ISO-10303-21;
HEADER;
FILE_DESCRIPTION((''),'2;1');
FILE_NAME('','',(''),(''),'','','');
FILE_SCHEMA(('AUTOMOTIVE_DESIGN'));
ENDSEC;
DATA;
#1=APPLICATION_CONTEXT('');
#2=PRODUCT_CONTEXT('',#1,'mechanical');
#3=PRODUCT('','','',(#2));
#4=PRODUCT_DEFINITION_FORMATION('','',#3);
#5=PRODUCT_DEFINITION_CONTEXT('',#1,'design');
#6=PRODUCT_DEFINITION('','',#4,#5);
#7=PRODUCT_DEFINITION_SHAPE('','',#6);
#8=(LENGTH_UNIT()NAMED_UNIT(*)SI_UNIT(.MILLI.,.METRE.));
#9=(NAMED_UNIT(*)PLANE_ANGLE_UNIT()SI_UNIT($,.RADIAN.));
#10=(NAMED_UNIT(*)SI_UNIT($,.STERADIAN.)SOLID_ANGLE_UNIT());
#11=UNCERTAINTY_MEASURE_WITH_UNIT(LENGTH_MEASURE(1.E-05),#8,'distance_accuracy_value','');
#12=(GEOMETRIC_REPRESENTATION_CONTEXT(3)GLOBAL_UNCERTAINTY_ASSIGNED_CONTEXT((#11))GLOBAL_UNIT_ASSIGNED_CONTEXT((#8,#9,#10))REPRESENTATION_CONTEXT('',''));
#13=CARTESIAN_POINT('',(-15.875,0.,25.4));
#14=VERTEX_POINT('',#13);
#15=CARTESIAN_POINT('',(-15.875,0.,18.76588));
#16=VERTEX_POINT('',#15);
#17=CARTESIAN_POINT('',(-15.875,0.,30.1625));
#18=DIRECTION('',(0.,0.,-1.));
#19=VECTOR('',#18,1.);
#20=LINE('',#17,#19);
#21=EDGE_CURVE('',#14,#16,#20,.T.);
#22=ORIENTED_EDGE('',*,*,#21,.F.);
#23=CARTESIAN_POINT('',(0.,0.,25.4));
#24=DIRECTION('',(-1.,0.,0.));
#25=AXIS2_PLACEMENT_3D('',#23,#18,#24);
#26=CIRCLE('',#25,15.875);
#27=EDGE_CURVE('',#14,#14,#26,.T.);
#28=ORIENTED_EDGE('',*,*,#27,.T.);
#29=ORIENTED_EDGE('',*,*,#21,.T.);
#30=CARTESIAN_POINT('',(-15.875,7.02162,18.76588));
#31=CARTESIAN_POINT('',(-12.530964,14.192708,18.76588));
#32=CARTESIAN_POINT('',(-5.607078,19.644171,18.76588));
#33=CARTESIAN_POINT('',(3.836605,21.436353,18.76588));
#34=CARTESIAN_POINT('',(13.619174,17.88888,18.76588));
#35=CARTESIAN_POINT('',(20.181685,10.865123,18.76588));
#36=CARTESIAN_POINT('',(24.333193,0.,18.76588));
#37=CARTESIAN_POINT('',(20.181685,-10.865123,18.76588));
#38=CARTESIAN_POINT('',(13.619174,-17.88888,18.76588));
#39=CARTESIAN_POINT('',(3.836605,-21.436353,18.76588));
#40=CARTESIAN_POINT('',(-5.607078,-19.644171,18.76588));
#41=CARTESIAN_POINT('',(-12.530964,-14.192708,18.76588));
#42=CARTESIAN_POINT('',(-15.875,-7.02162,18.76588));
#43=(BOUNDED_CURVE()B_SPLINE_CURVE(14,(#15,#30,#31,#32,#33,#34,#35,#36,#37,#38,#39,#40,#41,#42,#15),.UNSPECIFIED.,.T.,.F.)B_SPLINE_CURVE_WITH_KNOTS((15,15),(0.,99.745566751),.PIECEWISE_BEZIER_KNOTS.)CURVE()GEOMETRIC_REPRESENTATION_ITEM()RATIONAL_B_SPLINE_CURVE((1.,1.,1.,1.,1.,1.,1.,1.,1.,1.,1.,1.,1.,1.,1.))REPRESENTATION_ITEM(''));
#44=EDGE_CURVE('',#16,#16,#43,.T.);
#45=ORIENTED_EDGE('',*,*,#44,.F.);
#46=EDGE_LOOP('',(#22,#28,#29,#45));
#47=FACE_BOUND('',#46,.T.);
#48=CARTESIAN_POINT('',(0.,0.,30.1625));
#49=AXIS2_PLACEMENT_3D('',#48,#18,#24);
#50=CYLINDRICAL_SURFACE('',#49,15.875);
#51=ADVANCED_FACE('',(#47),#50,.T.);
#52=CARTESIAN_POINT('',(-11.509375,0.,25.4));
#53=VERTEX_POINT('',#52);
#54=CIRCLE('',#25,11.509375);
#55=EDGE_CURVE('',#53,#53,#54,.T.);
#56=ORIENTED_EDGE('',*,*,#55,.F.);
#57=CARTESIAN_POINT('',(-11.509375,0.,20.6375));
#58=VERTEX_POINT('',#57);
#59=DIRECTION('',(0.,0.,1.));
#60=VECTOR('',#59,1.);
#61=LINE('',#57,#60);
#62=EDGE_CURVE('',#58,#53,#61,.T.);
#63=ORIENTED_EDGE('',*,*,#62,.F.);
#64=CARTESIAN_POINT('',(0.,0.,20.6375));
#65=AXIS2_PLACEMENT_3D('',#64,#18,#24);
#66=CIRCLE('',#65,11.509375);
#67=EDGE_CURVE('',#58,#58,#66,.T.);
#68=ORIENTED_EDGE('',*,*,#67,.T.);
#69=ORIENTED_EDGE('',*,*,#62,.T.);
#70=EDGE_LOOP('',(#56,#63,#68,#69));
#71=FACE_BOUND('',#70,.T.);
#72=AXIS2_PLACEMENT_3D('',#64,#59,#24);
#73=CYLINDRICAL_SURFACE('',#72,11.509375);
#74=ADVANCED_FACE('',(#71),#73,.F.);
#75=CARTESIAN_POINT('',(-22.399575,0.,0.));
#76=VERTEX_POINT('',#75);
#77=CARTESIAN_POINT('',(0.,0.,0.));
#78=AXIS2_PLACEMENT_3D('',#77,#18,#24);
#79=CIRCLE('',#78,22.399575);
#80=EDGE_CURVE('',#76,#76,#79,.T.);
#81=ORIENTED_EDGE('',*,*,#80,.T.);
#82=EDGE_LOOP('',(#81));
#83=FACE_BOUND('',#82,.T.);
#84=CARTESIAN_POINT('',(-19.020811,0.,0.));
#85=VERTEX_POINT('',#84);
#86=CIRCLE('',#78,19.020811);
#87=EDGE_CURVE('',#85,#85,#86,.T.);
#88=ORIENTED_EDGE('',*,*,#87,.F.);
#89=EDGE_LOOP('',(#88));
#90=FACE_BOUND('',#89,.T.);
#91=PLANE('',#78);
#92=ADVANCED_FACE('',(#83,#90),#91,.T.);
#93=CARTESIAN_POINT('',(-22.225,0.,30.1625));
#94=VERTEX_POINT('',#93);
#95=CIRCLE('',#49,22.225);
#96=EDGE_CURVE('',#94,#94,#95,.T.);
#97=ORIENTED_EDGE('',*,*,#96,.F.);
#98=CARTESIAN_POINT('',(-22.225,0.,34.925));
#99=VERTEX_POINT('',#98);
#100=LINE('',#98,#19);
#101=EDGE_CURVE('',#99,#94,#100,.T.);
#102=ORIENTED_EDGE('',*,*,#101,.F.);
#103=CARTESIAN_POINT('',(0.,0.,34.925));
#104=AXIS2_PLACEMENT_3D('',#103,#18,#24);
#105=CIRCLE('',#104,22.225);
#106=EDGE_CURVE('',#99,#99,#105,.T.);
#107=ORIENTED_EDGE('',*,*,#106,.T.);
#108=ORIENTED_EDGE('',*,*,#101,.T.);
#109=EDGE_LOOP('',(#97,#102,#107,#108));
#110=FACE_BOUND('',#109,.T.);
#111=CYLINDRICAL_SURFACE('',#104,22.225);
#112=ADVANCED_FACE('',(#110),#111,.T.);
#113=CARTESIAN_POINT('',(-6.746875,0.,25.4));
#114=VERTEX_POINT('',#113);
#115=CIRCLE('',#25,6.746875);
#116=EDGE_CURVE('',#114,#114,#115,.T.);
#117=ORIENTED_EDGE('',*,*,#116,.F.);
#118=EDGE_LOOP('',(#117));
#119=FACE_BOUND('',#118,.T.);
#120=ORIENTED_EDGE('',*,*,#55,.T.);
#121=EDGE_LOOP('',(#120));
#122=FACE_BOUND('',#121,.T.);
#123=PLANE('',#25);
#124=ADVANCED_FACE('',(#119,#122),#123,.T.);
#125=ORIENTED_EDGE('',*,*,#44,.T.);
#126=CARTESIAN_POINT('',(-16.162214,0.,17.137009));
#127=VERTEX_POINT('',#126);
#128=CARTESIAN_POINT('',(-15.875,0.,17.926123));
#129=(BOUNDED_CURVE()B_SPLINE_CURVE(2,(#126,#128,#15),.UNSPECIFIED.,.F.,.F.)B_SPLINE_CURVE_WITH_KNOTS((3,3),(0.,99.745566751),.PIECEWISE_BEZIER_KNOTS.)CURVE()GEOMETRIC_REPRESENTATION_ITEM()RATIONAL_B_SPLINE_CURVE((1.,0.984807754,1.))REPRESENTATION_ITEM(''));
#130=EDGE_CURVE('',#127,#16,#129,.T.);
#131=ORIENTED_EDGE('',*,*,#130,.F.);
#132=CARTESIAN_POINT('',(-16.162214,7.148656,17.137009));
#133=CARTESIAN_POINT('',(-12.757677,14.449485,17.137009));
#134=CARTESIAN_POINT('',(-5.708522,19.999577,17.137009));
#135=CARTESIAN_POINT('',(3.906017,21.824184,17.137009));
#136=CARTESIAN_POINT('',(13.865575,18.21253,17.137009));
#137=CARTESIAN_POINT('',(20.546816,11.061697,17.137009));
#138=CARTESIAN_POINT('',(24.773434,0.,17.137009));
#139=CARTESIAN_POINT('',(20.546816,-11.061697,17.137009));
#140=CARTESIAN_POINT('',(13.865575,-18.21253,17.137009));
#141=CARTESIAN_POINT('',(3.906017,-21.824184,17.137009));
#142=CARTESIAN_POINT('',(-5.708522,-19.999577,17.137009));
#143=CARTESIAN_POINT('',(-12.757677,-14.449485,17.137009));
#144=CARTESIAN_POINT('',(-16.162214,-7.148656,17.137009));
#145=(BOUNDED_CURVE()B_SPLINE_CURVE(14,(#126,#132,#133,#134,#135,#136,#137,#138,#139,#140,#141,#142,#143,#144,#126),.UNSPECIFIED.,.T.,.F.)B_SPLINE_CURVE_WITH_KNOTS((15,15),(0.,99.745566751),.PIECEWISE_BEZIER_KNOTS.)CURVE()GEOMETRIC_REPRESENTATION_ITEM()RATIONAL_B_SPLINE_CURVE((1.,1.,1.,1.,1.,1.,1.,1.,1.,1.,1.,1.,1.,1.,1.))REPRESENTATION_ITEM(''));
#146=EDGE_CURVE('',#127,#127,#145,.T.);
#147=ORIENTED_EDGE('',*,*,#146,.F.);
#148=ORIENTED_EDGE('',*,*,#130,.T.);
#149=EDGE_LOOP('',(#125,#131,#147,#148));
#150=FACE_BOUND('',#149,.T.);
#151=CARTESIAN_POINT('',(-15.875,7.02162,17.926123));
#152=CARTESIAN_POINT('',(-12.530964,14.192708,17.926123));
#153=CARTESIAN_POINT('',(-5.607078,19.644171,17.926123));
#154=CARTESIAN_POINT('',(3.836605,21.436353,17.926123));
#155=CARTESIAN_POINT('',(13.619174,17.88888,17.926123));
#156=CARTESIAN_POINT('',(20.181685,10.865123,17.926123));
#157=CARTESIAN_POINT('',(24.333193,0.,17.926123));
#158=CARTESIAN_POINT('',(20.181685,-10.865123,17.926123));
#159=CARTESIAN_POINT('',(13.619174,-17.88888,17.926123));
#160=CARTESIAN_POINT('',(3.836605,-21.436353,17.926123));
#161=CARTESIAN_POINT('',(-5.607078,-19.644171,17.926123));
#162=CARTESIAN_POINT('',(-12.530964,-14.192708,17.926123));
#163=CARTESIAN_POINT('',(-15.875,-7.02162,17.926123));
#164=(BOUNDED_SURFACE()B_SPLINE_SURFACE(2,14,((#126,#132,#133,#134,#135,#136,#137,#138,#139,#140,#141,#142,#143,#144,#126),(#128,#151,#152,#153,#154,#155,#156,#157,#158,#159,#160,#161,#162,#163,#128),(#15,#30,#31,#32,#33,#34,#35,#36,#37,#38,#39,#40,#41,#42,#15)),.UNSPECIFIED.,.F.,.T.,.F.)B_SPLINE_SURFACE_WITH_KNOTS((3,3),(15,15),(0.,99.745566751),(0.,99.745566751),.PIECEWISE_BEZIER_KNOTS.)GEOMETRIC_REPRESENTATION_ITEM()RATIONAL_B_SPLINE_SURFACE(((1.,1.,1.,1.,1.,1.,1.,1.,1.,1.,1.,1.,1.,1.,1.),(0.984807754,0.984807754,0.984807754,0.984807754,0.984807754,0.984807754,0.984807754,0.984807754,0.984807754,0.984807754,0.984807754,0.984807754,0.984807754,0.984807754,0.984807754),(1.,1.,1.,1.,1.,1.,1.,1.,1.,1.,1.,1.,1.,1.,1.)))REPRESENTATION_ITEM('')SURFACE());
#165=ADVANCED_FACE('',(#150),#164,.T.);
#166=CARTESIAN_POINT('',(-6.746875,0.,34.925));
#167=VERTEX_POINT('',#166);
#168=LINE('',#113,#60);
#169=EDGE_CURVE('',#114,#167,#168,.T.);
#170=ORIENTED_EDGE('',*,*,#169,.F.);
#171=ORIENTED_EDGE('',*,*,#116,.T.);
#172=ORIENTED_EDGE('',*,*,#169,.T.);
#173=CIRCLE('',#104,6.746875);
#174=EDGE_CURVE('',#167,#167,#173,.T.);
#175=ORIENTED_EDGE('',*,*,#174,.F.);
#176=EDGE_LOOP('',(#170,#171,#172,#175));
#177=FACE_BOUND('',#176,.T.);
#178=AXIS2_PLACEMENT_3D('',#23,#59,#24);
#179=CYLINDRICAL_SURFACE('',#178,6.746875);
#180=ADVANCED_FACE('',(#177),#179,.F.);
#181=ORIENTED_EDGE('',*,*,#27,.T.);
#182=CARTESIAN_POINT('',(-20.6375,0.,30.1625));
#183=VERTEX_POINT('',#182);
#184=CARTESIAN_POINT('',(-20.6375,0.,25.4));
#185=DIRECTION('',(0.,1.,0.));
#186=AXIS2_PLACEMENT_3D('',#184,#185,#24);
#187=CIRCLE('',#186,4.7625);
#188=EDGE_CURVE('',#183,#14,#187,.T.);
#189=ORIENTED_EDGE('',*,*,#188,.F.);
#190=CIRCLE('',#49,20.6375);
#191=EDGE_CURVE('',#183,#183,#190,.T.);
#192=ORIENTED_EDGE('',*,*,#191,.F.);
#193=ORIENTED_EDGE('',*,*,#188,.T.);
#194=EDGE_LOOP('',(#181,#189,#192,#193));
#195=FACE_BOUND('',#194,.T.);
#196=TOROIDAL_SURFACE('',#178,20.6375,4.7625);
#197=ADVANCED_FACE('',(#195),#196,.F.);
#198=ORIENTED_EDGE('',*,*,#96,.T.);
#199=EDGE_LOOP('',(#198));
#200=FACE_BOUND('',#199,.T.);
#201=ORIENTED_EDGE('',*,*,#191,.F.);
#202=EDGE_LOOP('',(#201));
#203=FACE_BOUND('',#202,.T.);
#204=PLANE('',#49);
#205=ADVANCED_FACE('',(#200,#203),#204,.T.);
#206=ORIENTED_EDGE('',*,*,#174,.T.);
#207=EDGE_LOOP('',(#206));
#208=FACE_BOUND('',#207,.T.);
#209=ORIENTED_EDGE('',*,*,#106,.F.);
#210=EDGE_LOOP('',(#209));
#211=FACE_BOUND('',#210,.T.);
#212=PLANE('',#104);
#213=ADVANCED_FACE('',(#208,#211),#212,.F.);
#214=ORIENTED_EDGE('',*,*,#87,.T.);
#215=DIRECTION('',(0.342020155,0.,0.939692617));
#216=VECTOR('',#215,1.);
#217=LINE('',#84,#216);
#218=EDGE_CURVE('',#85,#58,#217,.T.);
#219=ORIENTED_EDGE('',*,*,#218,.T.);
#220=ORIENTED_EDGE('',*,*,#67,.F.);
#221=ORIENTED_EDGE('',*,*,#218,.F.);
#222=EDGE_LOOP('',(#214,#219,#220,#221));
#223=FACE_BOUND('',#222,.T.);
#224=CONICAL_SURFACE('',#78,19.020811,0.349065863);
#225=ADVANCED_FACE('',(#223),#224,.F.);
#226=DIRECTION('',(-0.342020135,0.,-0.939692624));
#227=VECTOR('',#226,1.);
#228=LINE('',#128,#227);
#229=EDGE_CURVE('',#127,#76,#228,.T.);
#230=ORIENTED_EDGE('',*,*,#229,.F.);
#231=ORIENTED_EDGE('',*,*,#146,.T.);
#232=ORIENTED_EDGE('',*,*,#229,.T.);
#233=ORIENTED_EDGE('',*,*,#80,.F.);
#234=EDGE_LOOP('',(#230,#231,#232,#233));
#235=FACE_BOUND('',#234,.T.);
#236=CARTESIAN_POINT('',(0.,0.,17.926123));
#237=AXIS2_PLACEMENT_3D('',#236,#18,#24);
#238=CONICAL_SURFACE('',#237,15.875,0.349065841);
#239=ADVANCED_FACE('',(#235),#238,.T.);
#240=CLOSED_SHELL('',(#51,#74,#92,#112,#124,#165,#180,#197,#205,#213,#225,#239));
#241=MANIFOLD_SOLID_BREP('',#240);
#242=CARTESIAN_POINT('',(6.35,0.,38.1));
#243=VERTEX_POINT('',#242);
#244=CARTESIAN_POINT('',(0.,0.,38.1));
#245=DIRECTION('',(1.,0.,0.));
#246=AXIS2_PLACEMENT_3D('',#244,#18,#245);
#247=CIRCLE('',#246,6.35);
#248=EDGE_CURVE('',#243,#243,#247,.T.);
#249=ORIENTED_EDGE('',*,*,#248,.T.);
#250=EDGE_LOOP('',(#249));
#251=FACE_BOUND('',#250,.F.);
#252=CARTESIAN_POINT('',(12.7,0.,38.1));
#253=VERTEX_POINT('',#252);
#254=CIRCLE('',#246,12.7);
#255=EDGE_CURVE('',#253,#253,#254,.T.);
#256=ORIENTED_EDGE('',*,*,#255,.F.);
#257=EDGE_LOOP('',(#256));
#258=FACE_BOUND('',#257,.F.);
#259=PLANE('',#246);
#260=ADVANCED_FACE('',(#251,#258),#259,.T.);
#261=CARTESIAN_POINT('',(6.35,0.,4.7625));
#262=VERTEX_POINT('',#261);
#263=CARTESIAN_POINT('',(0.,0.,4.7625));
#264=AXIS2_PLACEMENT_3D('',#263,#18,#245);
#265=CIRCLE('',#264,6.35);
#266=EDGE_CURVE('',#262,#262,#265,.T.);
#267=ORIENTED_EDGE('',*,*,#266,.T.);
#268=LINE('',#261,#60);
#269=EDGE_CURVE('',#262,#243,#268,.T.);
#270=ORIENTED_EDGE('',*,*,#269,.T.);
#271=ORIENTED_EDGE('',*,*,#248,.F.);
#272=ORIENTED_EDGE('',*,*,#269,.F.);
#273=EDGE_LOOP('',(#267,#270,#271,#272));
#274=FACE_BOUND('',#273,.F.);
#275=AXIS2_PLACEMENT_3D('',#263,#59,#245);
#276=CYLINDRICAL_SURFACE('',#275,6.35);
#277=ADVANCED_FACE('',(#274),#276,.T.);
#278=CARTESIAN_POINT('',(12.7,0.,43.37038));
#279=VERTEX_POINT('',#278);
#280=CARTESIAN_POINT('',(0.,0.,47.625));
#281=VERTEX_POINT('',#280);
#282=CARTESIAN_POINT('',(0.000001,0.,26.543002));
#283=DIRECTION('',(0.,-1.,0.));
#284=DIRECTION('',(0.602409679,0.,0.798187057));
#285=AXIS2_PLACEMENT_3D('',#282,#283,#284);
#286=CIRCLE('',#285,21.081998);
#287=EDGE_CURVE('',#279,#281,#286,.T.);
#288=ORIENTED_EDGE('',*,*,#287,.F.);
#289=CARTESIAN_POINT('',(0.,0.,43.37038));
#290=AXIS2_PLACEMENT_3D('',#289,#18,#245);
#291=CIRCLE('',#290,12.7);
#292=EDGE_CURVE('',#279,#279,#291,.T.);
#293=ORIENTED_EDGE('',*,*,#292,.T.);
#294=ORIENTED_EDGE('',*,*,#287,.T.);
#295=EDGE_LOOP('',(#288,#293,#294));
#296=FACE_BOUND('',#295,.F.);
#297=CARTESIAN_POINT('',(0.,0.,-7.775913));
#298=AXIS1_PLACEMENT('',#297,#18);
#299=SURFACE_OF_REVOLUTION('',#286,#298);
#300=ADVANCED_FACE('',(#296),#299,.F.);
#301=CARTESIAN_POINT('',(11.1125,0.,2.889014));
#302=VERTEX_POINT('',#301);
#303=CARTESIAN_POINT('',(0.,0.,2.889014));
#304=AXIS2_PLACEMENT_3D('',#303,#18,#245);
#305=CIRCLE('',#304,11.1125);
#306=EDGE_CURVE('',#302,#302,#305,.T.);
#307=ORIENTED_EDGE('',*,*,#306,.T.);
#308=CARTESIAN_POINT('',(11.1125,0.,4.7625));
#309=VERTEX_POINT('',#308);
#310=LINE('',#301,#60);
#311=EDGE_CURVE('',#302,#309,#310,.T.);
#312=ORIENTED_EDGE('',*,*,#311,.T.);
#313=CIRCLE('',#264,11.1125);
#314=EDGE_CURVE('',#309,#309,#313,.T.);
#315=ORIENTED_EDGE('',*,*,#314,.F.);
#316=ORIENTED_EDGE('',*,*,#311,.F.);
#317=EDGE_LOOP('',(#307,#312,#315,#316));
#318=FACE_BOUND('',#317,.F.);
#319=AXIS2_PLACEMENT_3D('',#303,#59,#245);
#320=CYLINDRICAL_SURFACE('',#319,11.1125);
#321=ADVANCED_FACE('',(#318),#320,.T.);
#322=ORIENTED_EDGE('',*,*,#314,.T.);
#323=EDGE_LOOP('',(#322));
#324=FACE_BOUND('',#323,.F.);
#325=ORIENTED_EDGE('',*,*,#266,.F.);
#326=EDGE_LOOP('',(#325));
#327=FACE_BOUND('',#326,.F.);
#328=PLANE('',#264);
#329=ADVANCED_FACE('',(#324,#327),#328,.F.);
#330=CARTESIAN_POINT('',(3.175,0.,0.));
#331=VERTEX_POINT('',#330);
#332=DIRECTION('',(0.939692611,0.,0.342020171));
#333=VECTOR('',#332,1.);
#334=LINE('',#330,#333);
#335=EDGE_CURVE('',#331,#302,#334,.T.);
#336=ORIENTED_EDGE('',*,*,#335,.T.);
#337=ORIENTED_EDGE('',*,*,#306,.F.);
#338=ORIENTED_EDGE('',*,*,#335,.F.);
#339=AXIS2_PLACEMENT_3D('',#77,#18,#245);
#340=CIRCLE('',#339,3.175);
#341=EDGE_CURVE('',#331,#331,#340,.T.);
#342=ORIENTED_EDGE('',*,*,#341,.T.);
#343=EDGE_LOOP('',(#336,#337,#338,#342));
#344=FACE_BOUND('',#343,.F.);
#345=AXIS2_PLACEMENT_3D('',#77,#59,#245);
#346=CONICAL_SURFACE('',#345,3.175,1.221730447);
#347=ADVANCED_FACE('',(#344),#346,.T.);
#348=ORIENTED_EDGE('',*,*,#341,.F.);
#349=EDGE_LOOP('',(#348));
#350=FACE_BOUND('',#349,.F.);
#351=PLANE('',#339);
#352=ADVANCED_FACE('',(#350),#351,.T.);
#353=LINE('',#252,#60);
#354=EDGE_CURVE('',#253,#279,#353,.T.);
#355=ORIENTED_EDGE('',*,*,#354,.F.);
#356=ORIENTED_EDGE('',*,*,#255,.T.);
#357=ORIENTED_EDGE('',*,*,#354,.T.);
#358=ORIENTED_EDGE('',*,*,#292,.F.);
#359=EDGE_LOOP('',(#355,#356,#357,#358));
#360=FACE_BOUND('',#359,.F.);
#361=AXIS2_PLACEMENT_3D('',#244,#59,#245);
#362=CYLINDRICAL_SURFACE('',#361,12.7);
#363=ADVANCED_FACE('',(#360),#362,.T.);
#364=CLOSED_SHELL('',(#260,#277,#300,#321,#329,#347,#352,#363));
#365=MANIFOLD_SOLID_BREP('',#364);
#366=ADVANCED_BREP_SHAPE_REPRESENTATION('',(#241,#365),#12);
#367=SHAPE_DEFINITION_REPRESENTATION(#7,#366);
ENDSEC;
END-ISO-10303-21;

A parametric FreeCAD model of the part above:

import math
import FreeCAD as App
import Part
import Sketcher

V = App.Vector
Q = App.Units.Quantity


def edges_at(feature, points):
    """Names of the edges that pass closest to the given points."""
    edges = feature.Shape.Edges
    near = lambda p: min(range(len(edges)), key=lambda i: edges[i].distToShape(Part.Vertex(*p))[0])
    return sorted({f"Edge{near(p) + 1}" for p in points})

doc = App.newDocument("Part")
params = doc.addObject("Spreadsheet::Sheet", "Params")
for row, (alias, value) in enumerate([
    ("sketch1_radius", "0.8299999 in"),
    ("sketch1_width", "0.25 in"),
    ("sketch1_width2", "0.125 in"),
    ("sketch1_width3", "0.1875 in"),
    ("sketch1_width4", "0.609375 in"),
    ("revolution_angle", "360 deg"),
    ("fillet_radius", "0.1875 in"),
], start=1):
    params.set(f"A{row}", alias)
    params.set(f"B{row}", "=" + value)
    params.setAlias(f"B{row}", alias)

body = doc.addObject("PartDesign::Body", "Body")
body.AllowCompound = True

# Sketch on XZ plane
sketch1 = doc.addObject("Sketcher::SketchObject", "Sketch")
body.addObject(sketch1)
sketch1.AttachmentSupport = (doc.XZ_Plane, [""])
sketch1.MapMode = "FlatFace"
sketch1.addGeometry([
    Part.LineSegment(V(0, 47.625, 0), V(0, 0, 0)),  # 0
    Part.LineSegment(V(0, 0, 0), V(3.175, 0, 0)),  # 1
    Part.LineSegment(V(3.175, 0, 0), V(11.1125, 2.889014, 0)),  # 2
    Part.LineSegment(V(11.1125, 2.889014, 0), V(11.1125, 4.7625, 0)),  # 3
    Part.LineSegment(V(11.1125, 4.7625, 0), V(6.35, 4.7625, 0)),  # 4
    Part.LineSegment(V(6.35, 4.7625, 0), V(6.35, 38.1, 0)),  # 5
    Part.LineSegment(V(6.35, 38.1, 0), V(12.7, 38.1, 0)),  # 6
    Part.LineSegment(V(12.7, 38.1, 0), V(12.7, 43.37038, 0)),  # 7
    Part.ArcOfCircle(Part.Circle(V(0.000001, 26.543002, 0), V(0, 0, 1), 21.081998), math.radians(52.957326), math.radians(90.000001)),  # 8
    Part.LineSegment(V(-15.875, 17.926123, 0), V(-22.399575, 0, 0)),  # 9
    Part.LineSegment(V(-22.399575, 0, 0), V(-19.020811, 0, 0)),  # 10
    Part.LineSegment(V(-19.020811, 0, 0), V(-11.509375, 20.6375, 0)),  # 11
    Part.LineSegment(V(-11.509375, 20.6375, 0), V(-11.509375, 25.4, 0)),  # 12
    Part.LineSegment(V(-11.509375, 25.4, 0), V(-6.746875, 25.4, 0)),  # 13
    Part.LineSegment(V(-6.746875, 25.4, 0), V(-6.746875, 34.925, 0)),  # 14
    Part.LineSegment(V(-6.746875, 34.925, 0), V(-22.225, 34.925, 0)),  # 15
    Part.LineSegment(V(-22.225, 34.925, 0), V(-22.225, 30.1625, 0)),  # 16
    Part.LineSegment(V(-22.225, 30.1625, 0), V(-15.875, 30.1625, 0)),  # 17
    Part.LineSegment(V(-15.875, 30.1625, 0), V(-15.875, 17.926123, 0)),  # 18
], False)
sketch1.addConstraint([
    Sketcher.Constraint("Coincident", 0, 2, 1, 1),
    Sketcher.Constraint("Coincident", 1, 2, 2, 1),
    Sketcher.Constraint("Coincident", 2, 2, 3, 1),
    Sketcher.Constraint("Coincident", 3, 2, 4, 1),
    Sketcher.Constraint("Coincident", 4, 2, 5, 1),
    Sketcher.Constraint("Coincident", 5, 2, 6, 1),
    Sketcher.Constraint("Coincident", 6, 2, 7, 1),
    Sketcher.Constraint("Coincident", 7, 2, 8, 1),
    Sketcher.Constraint("Coincident", 8, 2, 0, 1),
    Sketcher.Constraint("Coincident", 9, 2, 10, 1),
    Sketcher.Constraint("Coincident", 10, 2, 11, 1),
    Sketcher.Constraint("Coincident", 11, 2, 12, 1),
    Sketcher.Constraint("Coincident", 12, 2, 13, 1),
    Sketcher.Constraint("Coincident", 13, 2, 14, 1),
    Sketcher.Constraint("Coincident", 14, 2, 15, 1),
    Sketcher.Constraint("Coincident", 15, 2, 16, 1),
    Sketcher.Constraint("Coincident", 16, 2, 17, 1),
    Sketcher.Constraint("Coincident", 17, 2, 18, 1),
    Sketcher.Constraint("Coincident", 18, 2, 9, 1),
    Sketcher.Constraint("Vertical", 0),
    Sketcher.Constraint("Horizontal", 1),
    Sketcher.Constraint("Vertical", 3),
    Sketcher.Constraint("Horizontal", 4),
    Sketcher.Constraint("Vertical", 5),
    Sketcher.Constraint("Horizontal", 6),
    Sketcher.Constraint("Vertical", 7),
    Sketcher.Constraint("Horizontal", 10),
    Sketcher.Constraint("Vertical", 12),
    Sketcher.Constraint("Horizontal", 13),
    Sketcher.Constraint("Vertical", 14),
    Sketcher.Constraint("Horizontal", 15),
    Sketcher.Constraint("Vertical", 16),
    Sketcher.Constraint("Horizontal", 17),
    Sketcher.Constraint("Vertical", 18),
    Sketcher.Constraint("Coincident", 0, 2, -1, 1),
    Sketcher.Constraint("PointOnObject", 8, 3, -2),
    Sketcher.Constraint("PointOnObject", 9, 2, -1),
    Sketcher.Constraint("Parallel", 9, 11),
    Sketcher.Constraint("Equal", 4, 13),
    Sketcher.Constraint("Equal", 6, 17),
    Sketcher.Constraint("Equal", 13, 12),
    Sketcher.Constraint("Equal", 12, 16),
    Sketcher.Constraint("Radius", 8, Q("0.8299999 in")),
    Sketcher.Constraint("DistanceY", -1, 1, 12, 2, Q("1 in")),
    Sketcher.Constraint("Angle", 2, Q("20.000002 deg")),
    Sketcher.Constraint("Angle", 9, Q("-109.999999 deg")),
    Sketcher.Constraint("DistanceX", 6, 1, 6, 2, Q("0.25 in")),
    Sketcher.Constraint("DistanceY", -1, 1, 5, 2, Q("1.5 in")),
    Sketcher.Constraint("DistanceX", -1, 1, 6, 2, Q("0.5 in")),
    Sketcher.Constraint("DistanceY", 14, 2, 8, 2, Q("0.5 in")),
    Sketcher.Constraint("DistanceX", 1, 1, 1, 2, Q("0.125 in")),
    Sketcher.Constraint("DistanceX", 4, 2, 4, 1, Q("0.1875 in")),
    Sketcher.Constraint("DistanceX", 15, 2, 15, 1, Q("0.609375 in")),
    Sketcher.Constraint("DistanceY", 0, 2, 0, 1, Q("1.875 in")),
    Sketcher.Constraint("DistanceY", 5, 1, 5, 2, Q("1.3125 in")),
    Sketcher.Constraint("DistanceX", 11, 2, -1, 1, Q("0.453125 in")),
    Sketcher.Constraint("DistanceX", 9, 2, 11, 2, Q("10.8902 mm")),
])
sketch1.setExpression("Constraints[42]", "Params.sketch1_radius")
sketch1.setExpression("Constraints[46]", "Params.sketch1_width")
sketch1.setExpression("Constraints[50]", "Params.sketch1_width2")
sketch1.setExpression("Constraints[51]", "Params.sketch1_width3")
sketch1.setExpression("Constraints[52]", "Params.sketch1_width4")
revolution = doc.addObject("PartDesign::Revolution", "Revolution")
body.addObject(revolution)
revolution.Profile = sketch1
revolution.ReferenceAxis = (sketch1, ["V_Axis"])
revolution.setExpression("Angle", "Params.revolution_angle")
doc.recompute()

fillet = doc.addObject("PartDesign::Fillet", "Fillet")
body.addObject(fillet)
fillet.Base = (revolution, edges_at(revolution, [(15.875, 0, 30.163), (15.875, 0, 17.926)]))
fillet.setExpression("Radius", "Params.fillet_radius")

doc.recompute()
